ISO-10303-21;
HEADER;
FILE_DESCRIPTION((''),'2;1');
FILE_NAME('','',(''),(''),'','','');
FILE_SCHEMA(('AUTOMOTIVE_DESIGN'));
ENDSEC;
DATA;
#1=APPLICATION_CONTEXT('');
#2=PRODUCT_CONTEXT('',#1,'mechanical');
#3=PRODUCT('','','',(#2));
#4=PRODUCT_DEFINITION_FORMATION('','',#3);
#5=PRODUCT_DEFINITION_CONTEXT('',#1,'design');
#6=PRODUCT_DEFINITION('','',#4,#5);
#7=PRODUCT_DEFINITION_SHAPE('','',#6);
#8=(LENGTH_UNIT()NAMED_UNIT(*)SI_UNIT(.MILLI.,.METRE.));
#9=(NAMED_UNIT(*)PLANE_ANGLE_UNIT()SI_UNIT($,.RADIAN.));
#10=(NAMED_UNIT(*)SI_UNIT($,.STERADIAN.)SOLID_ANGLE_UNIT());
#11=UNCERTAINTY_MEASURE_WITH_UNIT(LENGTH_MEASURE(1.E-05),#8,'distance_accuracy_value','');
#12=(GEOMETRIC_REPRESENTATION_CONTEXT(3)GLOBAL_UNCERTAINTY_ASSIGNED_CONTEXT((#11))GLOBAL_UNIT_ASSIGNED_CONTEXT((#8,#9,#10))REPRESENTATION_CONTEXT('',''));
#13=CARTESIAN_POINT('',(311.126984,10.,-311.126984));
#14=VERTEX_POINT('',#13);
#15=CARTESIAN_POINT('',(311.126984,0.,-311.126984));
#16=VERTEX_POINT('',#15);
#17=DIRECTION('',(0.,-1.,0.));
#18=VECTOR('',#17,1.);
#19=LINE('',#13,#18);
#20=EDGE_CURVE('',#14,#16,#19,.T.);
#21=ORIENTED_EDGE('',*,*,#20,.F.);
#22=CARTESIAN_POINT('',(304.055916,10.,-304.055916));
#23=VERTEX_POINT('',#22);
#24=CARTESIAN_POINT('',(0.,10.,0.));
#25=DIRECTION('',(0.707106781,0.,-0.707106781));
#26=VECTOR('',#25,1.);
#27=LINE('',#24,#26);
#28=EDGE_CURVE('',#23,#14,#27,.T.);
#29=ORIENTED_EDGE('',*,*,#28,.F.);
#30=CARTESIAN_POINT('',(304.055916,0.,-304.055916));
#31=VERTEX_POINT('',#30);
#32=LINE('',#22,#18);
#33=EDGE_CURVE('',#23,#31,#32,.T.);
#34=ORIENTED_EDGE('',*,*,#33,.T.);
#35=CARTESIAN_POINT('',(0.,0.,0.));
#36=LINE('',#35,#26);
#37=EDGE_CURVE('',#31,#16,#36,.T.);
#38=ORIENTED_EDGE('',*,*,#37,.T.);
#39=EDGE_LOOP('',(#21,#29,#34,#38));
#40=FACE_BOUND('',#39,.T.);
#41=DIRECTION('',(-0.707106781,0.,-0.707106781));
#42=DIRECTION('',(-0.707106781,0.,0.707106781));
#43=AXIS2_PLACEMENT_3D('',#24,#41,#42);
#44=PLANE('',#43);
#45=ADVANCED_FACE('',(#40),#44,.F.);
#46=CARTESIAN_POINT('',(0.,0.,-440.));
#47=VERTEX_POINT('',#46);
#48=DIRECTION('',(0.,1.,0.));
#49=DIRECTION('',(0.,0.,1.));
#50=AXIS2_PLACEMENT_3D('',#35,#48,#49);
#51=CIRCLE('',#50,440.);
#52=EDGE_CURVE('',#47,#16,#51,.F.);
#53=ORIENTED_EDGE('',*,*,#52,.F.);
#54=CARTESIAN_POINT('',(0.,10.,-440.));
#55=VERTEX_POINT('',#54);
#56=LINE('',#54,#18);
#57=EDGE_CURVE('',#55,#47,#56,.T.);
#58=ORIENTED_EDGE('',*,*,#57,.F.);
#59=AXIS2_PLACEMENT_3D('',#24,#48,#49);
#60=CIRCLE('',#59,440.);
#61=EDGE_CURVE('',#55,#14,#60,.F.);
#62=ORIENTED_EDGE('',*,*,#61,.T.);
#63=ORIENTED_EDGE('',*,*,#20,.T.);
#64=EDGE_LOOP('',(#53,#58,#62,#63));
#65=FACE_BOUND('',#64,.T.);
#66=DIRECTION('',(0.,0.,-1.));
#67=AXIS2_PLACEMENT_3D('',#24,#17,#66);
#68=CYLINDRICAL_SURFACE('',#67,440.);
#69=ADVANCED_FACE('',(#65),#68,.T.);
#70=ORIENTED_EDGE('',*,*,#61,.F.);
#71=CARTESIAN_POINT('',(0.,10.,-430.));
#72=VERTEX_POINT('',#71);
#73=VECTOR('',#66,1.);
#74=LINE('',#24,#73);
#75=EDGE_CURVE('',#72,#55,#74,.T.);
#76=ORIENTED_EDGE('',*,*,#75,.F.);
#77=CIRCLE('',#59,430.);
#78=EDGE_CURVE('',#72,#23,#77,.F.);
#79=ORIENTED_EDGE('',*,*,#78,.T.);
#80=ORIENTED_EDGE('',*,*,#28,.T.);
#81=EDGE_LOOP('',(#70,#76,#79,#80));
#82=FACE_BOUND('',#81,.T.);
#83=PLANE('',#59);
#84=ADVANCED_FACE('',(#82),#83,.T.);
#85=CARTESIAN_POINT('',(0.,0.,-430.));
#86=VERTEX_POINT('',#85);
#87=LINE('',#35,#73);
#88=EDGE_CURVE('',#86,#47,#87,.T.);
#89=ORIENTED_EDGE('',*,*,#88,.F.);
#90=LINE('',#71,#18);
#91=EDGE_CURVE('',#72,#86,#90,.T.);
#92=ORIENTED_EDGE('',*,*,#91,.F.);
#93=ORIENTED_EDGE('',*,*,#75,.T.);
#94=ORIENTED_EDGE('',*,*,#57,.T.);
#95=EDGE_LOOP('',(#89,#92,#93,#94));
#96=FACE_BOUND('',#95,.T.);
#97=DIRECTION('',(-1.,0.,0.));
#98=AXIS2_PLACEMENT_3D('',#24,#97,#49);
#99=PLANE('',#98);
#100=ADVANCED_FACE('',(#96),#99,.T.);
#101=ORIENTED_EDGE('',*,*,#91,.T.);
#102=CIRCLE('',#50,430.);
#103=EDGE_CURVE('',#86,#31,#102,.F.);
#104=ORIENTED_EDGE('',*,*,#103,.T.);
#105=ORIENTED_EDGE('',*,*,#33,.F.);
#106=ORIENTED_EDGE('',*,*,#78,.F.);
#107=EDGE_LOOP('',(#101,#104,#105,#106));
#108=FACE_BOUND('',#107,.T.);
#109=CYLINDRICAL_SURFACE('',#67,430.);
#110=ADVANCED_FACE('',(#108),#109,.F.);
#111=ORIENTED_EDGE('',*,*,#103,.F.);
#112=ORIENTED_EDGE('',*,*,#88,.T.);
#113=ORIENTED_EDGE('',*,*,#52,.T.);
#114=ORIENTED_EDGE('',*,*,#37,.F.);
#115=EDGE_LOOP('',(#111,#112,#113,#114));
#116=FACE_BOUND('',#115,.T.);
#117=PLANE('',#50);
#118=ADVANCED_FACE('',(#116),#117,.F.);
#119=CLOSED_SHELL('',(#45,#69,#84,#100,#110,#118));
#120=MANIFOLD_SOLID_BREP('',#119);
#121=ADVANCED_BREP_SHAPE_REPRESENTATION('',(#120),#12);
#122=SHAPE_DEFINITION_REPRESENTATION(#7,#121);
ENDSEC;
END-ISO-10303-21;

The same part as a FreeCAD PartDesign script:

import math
import FreeCAD as App
import Part
import Sketcher

V = App.Vector
Q = App.Units.Quantity

doc = App.newDocument("Part")
body = doc.addObject("PartDesign::Body", "Body")

sketch1 = doc.addObject("Sketcher::SketchObject", "Sketch")
body.addObject(sketch1)
sketch1.AttachmentSupport = (doc.XZ_Plane, [""])
sketch1.MapMode = "FlatFace"
sketch1.addGeometry(Part.ArcOfCircle(Part.Circle(V(0, 0, 0), V(0, 0, 1), 440), math.radians(-90), math.radians(-45)), False)
sketch1.addGeometry(Part.LineSegment(V(0, -440, 0), V(0, -430, 0)), False)
sketch1.addGeometry(Part.ArcOfCircle(Part.Circle(V(0, 0, 0), V(0, 0, 1), 430), math.radians(-90), math.radians(-45)), False)
sketch1.addGeometry(Part.LineSegment(V(304, -304, 0), V(311, -311, 0)), False)
sketch1.addConstraint(Sketcher.Constraint("Coincident", 0, 1, 1, 1))
sketch1.addConstraint(Sketcher.Constraint("Coincident", 1, 2, 2, 1))
sketch1.addConstraint(Sketcher.Constraint("Coincident", 2, 2, 3, 1))
sketch1.addConstraint(Sketcher.Constraint("Coincident", 3, 2, 0, 2))
sketch1.addConstraint(Sketcher.Constraint("Vertical", 1))
sketch1.addConstraint(Sketcher.Constraint("Coincident", 0, 3, -1, 1))
sketch1.addConstraint(Sketcher.Constraint("Coincident", 2, 3, -1, 1))
sketch1.addConstraint(Sketcher.Constraint("PointOnObject", 1, 2, -2))
sketch1.addConstraint(Sketcher.Constraint("Radius", 0, 440.0))
sketch1.addConstraint(Sketcher.Constraint("Radius", 2, 430.0))
sketch1.addConstraint(Sketcher.Constraint("Angle", 3, Q("-45 deg")))
sketch1.addConstraint(Sketcher.Constraint("DistanceX", -1, 1, 3, 2, 311.126984))
pad1 = doc.addObject("PartDesign::Pad", "Pad")
body.addObject(pad1)
pad1.Profile = sketch1
pad1.Length = 10
pad1.Reversed = True

doc.recompute()
